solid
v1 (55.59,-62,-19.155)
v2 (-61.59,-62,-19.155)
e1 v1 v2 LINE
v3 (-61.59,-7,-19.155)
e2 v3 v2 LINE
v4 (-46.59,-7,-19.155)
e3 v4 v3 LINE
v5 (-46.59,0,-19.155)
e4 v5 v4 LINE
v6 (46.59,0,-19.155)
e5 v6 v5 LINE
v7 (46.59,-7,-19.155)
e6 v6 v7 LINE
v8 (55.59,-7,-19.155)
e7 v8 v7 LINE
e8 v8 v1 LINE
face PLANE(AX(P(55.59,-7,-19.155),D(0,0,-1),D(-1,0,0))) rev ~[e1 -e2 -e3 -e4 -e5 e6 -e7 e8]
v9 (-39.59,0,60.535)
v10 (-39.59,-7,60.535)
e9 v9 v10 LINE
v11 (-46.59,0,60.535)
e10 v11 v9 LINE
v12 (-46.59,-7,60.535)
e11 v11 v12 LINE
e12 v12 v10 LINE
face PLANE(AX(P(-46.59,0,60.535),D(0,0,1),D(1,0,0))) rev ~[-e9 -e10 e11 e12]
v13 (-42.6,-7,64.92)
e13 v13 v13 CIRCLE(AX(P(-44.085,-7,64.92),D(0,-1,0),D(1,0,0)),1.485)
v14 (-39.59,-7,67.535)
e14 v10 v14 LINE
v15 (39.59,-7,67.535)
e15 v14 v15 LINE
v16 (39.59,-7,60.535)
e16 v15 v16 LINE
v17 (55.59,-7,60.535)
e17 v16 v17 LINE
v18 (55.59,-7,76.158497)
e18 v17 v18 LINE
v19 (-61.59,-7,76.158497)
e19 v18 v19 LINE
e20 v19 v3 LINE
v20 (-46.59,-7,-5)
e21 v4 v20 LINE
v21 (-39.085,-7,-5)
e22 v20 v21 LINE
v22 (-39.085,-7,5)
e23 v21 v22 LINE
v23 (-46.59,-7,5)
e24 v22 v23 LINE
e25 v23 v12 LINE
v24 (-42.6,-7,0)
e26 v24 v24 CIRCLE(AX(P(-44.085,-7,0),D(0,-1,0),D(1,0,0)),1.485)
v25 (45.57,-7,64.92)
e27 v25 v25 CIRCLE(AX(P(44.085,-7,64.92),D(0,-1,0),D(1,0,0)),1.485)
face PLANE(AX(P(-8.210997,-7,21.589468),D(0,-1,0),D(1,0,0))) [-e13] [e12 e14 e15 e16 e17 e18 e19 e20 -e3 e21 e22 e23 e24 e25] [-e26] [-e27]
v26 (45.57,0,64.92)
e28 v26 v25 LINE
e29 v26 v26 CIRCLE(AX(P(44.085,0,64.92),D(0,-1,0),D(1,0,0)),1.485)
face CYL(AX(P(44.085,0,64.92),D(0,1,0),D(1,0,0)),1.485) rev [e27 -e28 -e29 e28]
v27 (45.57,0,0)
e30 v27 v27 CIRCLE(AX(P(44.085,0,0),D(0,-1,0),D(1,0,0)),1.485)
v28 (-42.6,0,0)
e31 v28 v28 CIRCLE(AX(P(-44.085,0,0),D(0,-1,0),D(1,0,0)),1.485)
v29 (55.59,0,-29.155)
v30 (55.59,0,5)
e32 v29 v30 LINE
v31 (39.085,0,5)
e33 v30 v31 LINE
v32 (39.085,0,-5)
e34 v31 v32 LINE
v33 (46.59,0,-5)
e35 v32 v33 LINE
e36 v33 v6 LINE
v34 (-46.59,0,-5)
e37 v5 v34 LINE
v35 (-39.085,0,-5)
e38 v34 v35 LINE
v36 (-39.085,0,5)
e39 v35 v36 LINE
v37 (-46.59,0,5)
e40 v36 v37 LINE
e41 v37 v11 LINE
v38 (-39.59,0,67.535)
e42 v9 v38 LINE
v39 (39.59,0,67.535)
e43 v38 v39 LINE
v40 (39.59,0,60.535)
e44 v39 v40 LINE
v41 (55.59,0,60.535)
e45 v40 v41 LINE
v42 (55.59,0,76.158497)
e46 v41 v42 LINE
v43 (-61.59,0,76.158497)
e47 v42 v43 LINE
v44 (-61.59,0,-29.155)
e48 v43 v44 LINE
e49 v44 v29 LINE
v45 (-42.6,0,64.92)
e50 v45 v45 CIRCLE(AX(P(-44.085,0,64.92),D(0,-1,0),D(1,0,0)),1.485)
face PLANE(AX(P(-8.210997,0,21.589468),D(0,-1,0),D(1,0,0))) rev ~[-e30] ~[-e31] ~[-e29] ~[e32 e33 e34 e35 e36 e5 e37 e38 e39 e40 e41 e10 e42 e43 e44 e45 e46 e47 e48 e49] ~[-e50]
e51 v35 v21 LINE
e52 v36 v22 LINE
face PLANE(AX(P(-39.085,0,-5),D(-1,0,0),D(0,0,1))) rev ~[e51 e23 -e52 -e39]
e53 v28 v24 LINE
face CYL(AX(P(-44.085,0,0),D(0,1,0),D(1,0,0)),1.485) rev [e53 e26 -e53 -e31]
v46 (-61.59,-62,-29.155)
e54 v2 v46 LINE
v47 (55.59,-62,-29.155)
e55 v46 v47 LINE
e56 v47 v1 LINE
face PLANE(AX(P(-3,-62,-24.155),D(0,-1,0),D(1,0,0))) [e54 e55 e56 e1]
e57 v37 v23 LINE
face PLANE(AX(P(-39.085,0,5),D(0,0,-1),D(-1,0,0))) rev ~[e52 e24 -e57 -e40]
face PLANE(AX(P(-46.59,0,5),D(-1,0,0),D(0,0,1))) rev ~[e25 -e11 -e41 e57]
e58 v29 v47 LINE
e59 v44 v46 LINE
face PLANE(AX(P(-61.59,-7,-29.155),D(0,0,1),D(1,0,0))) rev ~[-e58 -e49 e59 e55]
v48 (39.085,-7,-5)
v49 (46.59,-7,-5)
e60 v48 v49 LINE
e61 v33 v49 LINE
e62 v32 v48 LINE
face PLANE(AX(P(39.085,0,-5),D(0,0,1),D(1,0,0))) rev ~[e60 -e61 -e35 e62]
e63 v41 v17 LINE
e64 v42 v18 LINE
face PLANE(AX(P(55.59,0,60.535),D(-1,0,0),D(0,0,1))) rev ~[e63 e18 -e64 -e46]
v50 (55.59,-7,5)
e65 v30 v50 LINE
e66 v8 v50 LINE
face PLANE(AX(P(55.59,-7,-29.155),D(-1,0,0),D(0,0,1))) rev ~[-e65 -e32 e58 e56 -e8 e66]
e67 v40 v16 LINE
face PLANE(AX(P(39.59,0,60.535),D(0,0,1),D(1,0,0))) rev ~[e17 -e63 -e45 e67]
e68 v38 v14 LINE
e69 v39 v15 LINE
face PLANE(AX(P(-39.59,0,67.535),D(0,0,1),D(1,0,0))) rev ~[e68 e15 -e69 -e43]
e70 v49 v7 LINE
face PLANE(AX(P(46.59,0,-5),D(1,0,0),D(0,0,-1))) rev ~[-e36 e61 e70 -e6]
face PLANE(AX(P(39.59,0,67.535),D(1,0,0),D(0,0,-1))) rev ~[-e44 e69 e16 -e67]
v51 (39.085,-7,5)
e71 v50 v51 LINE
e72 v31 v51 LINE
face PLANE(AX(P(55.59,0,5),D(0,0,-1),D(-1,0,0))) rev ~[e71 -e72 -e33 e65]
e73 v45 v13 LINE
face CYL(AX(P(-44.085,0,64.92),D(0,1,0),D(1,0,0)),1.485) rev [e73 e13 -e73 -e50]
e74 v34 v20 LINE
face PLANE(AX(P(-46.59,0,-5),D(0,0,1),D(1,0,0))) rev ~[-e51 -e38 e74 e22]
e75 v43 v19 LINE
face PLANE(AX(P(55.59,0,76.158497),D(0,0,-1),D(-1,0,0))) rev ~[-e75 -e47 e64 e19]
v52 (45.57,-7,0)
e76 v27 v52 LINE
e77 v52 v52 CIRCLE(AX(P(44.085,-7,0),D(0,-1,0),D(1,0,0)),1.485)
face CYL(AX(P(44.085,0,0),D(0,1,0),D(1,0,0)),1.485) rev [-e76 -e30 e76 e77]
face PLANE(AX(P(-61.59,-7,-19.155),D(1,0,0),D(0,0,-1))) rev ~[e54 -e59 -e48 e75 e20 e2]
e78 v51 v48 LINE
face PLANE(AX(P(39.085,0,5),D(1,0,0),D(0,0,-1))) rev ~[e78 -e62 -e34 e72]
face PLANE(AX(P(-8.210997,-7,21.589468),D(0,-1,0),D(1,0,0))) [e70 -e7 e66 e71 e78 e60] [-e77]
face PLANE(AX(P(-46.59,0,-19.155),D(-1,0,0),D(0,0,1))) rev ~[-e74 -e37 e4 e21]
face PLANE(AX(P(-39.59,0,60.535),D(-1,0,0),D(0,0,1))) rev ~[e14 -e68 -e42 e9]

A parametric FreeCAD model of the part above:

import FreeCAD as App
import Part
import Sketcher
from FreeCAD import Vector


def add_polygon(sketch, points):
    """Adds a closed chain of lines whose ends are joined by coincident constraints."""
    first, n = sketch.GeometryCount, len(points)
    for a, b in zip(points, points[1:] + points[:1]):
        sketch.addGeometry(Part.LineSegment(App.Vector(*a, 0), App.Vector(*b, 0)), False)
    for i in range(n):
        sketch.addConstraint(Sketcher.Constraint("Coincident", first + i, 2, first + (i + 1) % n, 1))

doc = App.newDocument("Part")
body = doc.addObject("PartDesign::Body", "Body")

# Sketch on XZ plane
sketch1 = body.newObject("Sketcher::SketchObject", "Sketch")
sketch1.AttachmentSupport = (doc.getObject("XZ_Plane"), [""])
sketch1.MapMode = "FlatFace"
add_polygon(sketch1, [(-39.59, 60.535), (-39.59, 67.535), (39.59, 67.535), (39.59, 60.535), (55.59, 60.535), (55.59, 76.158497), (-61.59, 76.158497), (-61.59, -29.155), (55.59, -29.155), (55.59, 5), (39.085, 5), (39.085, -5), (46.59, -5), (46.59, -19.155), (-46.59, -19.155), (-46.59, -5), (-39.085, -5), (-39.085, 5), (-46.59, 5), (-46.59, 60.535)])  # lines 0-19
sketch1.addGeometry(Part.Circle(Vector(-44.085, 0, 0), Vector(0, 0, 1), 1.485), False)  # 20
sketch1.addGeometry(Part.Circle(Vector(44.085, 0, 0), Vector(0, 0, 1), 1.485), False)  # 21
sketch1.addGeometry(Part.Circle(Vector(-44.085, 64.92, 0), Vector(0, 0, 1), 1.485), False)  # 22
sketch1.addGeometry(Part.Circle(Vector(44.085, 64.92, 0), Vector(0, 0, 1), 1.485), False)  # 23
sketch1.addConstraint(Sketcher.Constraint("Vertical", 0))
sketch1.addConstraint(Sketcher.Constraint("Horizontal", 1))
sketch1.addConstraint(Sketcher.Constraint("Vertical", 2))
sketch1.addConstraint(Sketcher.Constraint("Horizontal", 3))
sketch1.addConstraint(Sketcher.Constraint("Vertical", 4))
sketch1.addConstraint(Sketcher.Constraint("Horizontal", 5))
sketch1.addConstraint(Sketcher.Constraint("Vertical", 6))
sketch1.addConstraint(Sketcher.Constraint("Horizontal", 7))
sketch1.addConstraint(Sketcher.Constraint("Vertical", 8))
sketch1.addConstraint(Sketcher.Constraint("Horizontal", 9))
sketch1.addConstraint(Sketcher.Constraint("Vertical", 10))
sketch1.addConstraint(Sketcher.Constraint("Horizontal", 11))
sketch1.addConstraint(Sketcher.Constraint("Vertical", 12))
sketch1.addConstraint(Sketcher.Constraint("Horizontal", 13))
sketch1.addConstraint(Sketcher.Constraint("Vertical", 14))
sketch1.addConstraint(Sketcher.Constraint("Horizontal", 15))
sketch1.addConstraint(Sketcher.Constraint("Vertical", 16))
sketch1.addConstraint(Sketcher.Constraint("Horizontal", 17))
sketch1.addConstraint(Sketcher.Constraint("Vertical", 18))
sketch1.addConstraint(Sketcher.Constraint("Horizontal", 19))
sketch1.addConstraint(Sketcher.Constraint("Equal", 20, 21))
sketch1.addConstraint(Sketcher.Constraint("Equal", 21, 22))
sketch1.addConstraint(Sketcher.Constraint("Equal", 22, 23))
sketch1.addConstraint(Sketcher.Constraint("Symmetric", 20, 3, 21, 3, -1, 1))
sketch1.addConstraint(Sketcher.Constraint("Symmetric", 9, 2, 15, 2, -1, 1))
sketch1.addConstraint(Sketcher.Constraint("Symmetric", 11, 2, 17, 2, -1, 1))
sketch1.addConstraint(Sketcher.Constraint("Symmetric", 22, 3, 23, 3, -2))
sketch1.addConstraint(Sketcher.Constraint("Symmetric", 11, 2, 14, 2, -2))
sketch1.addConstraint(Sketcher.Constraint("Symmetric", 2, 2, 19, 2, -2))
sketch1.addConstraint(Sketcher.Constraint("PointOnObject", 20, 3, -1))
sketch1.addConstraint(Sketcher.Constraint("Vertical", 20, 3, 22, 3))
sketch1.addConstraint(Sketcher.Constraint("Vertical", 4, 2, 7, 2))
sketch1.addConstraint(Sketcher.Constraint("Equal", 19, 0))
sketch1.addConstraint(Sketcher.Constraint("Diameter", 20, 2.97))
sketch1.addConstraint(Sketcher.Constraint("DistanceX", 3, 1, 3, 2, 16.0))
sketch1.addConstraint(Sketcher.Constraint("DistanceX", 19, 1, 19, 2, 7.0))
sketch1.addConstraint(Sketcher.Constraint("DistanceY", 10, 2, 10, 1, 10.0))
sketch1.addConstraint(Sketcher.Constraint("DistanceX", 5, 2, 0, 2, 22.0))
sketch1.addConstraint(Sketcher.Constraint("DistanceX", 9, 2, 21, 3, 5.0))
sketch1.addConstraint(Sketcher.Constraint("DistanceY", 7, 2, 12, 2, 10.0))
sketch1.addConstraint(Sketcher.Constraint("DistanceX", 1, 1, 1, 2, 79.18))
sketch1.addConstraint(Sketcher.Constraint("DistanceX", 9, 2, 9, 1, 16.505))
sketch1.addConstraint(Sketcher.Constraint("DistanceY", 8, 1, 8, 2, 34.155))
sketch1.addConstraint(Sketcher.Constraint("DistanceY", 18, 1, 18, 2, 55.535))
sketch1.addConstraint(Sketcher.Constraint("DistanceY", -1, 1, 22, 3, 64.92))
sketch1.addConstraint(Sketcher.Constraint("DistanceY", 4, 1, 4, 2, 15.623497))
pad1 = body.newObject("PartDesign::Pad", "Pad")
pad1.Profile = sketch1
pad1.Length = 7

# Sketch on XZ plane
sketch2 = body.newObject("Sketcher::SketchObject", "Sketch001")
sketch2.AttachmentSupport = (doc.getObject("XZ_Plane"), [""])
sketch2.MapMode = "FlatFace"
sketch2.AttachmentOffset = App.Placement(Vector(0, 0, 7), App.Rotation())
add_polygon(sketch2, [(-61.59, -19.155), (-61.59, -29.155), (55.59, -29.155), (55.59, -19.155)])  # lines 0-3
sketch2.addConstraint(Sketcher.Constraint("Vertical", 0))
sketch2.addConstraint(Sketcher.Constraint("Horizontal", 1))
sketch2.addConstraint(Sketcher.Constraint("Vertical", 2))
sketch2.addConstraint(Sketcher.Constraint("Horizontal", 3))
sketch2.addConstraint(Sketcher.Constraint("DistanceY", 0, 2, 0, 1, 10.0))
sketch2.addConstraint(Sketcher.Constraint("DistanceX", 1, 1, 1, 2, 117.18))
sketch2.addConstraint(Sketcher.Constraint("DistanceX", 0, 2, -1, 1, 61.59))
sketch2.addConstraint(Sketcher.Constraint("DistanceY", 0, 2, -1, 1, 29.155))
pad2 = body.newObject("PartDesign::Pad", "Pad001")
pad2.Profile = sketch2
pad2.Length = 55

doc.recompute()
